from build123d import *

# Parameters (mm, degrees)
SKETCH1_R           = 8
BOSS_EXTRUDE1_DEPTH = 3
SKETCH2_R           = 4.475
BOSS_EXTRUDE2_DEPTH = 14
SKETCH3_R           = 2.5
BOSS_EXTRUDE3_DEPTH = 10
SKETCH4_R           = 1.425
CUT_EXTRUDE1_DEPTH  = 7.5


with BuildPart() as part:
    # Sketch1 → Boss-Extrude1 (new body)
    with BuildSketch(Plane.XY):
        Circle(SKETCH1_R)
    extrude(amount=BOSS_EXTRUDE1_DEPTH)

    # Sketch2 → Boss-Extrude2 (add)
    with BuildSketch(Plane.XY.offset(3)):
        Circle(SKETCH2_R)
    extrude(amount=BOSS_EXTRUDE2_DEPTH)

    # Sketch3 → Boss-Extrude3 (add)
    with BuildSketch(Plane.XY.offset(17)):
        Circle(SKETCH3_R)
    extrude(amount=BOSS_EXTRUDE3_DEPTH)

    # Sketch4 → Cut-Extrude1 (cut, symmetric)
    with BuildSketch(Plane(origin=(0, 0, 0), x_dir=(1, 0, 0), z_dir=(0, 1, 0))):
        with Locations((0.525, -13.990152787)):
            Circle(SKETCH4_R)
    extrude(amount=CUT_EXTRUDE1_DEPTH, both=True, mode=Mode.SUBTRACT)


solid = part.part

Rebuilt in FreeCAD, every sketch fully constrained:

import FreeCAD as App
import Part
import Sketcher
Q = App.Units.Quantity

doc = App.newDocument("Part")
body = doc.addObject("PartDesign::Body", "Body")

sketch1 = body.newObject("Sketcher::SketchObject", "Sketch")
sketch1.AttachmentSupport = (doc.getObject("XY_Plane"), [""])
sketch1.MapMode = "FlatFace"
sketch1.addGeometry(Part.Circle(App.Vector(0, 0, 0), App.Vector(0, 0, 1), 8), False)
sketch1.addConstraint(Sketcher.Constraint("Coincident", 0, 3, -1, 1))
sketch1.addConstraint(Sketcher.Constraint("Diameter", 0, Q("16 mm")))
pad1 = body.newObject("PartDesign::Pad", "Pad")
pad1.Profile = sketch1
pad1.Length = 3

sketch2 = body.newObject("Sketcher::SketchObject", "Sketch001")
sketch2.AttachmentSupport = (doc.getObject("XY_Plane"), [""])
sketch2.MapMode = "FlatFace"
sketch2.AttachmentOffset = App.Placement(App.Vector(0, 0, 3), App.Rotation())
sketch2.addGeometry(Part.Circle(App.Vector(0, 0, 0), App.Vector(0, 0, 1), 4.5), False)
sketch2.addConstraint(Sketcher.Constraint("Coincident", 0, 3, -1, 1))
sketch2.addConstraint(Sketcher.Constraint("Diameter", 0, Q("8.95 mm")))
pad2 = body.newObject("PartDesign::Pad", "Pad001")
pad2.Profile = sketch2
pad2.Length = 14

sketch3 = body.newObject("Sketcher::SketchObject", "Sketch002")
sketch3.AttachmentSupport = (doc.getObject("XY_Plane"), [""])
sketch3.MapMode = "FlatFace"
sketch3.AttachmentOffset = App.Placement(App.Vector(0, 0, 17), App.Rotation())
sketch3.addGeometry(Part.Circle(App.Vector(0, 0, 0), App.Vector(0, 0, 1), 2.5), False)
sketch3.addConstraint(Sketcher.Constraint("Coincident", 0, 3, -1, 1))
sketch3.addConstraint(Sketcher.Constraint("Diameter", 0, Q("5 mm")))
pad3 = body.newObject("PartDesign::Pad", "Pad002")
pad3.Profile = sketch3
pad3.Length = 10

sketch4 = body.newObject("Sketcher::SketchObject", "Sketch003")
sketch4.AttachmentSupport = (doc.getObject("XZ_Plane"), [""])
sketch4.MapMode = "FlatFace"
sketch4.addGeometry(Part.Circle(App.Vector(0.5, 14, 0), App.Vector(0, 0, 1), 1.4), False)
sketch4.addConstraint(Sketcher.Constraint("Diameter", 0, Q("2.85 mm")))
sketch4.addConstraint(Sketcher.Constraint("DistanceX", -1, 1, 0, 3, Q("0.525 mm")))
sketch4.addConstraint(Sketcher.Constraint("DistanceY", -1, 1, 0, 3, Q("13.990153 mm")))
pocket1 = body.newObject("PartDesign::Pocket", "Pocket")
pocket1.Profile = sketch4
pocket1.Length = 15
pocket1.Midplane = True

doc.recompute()
